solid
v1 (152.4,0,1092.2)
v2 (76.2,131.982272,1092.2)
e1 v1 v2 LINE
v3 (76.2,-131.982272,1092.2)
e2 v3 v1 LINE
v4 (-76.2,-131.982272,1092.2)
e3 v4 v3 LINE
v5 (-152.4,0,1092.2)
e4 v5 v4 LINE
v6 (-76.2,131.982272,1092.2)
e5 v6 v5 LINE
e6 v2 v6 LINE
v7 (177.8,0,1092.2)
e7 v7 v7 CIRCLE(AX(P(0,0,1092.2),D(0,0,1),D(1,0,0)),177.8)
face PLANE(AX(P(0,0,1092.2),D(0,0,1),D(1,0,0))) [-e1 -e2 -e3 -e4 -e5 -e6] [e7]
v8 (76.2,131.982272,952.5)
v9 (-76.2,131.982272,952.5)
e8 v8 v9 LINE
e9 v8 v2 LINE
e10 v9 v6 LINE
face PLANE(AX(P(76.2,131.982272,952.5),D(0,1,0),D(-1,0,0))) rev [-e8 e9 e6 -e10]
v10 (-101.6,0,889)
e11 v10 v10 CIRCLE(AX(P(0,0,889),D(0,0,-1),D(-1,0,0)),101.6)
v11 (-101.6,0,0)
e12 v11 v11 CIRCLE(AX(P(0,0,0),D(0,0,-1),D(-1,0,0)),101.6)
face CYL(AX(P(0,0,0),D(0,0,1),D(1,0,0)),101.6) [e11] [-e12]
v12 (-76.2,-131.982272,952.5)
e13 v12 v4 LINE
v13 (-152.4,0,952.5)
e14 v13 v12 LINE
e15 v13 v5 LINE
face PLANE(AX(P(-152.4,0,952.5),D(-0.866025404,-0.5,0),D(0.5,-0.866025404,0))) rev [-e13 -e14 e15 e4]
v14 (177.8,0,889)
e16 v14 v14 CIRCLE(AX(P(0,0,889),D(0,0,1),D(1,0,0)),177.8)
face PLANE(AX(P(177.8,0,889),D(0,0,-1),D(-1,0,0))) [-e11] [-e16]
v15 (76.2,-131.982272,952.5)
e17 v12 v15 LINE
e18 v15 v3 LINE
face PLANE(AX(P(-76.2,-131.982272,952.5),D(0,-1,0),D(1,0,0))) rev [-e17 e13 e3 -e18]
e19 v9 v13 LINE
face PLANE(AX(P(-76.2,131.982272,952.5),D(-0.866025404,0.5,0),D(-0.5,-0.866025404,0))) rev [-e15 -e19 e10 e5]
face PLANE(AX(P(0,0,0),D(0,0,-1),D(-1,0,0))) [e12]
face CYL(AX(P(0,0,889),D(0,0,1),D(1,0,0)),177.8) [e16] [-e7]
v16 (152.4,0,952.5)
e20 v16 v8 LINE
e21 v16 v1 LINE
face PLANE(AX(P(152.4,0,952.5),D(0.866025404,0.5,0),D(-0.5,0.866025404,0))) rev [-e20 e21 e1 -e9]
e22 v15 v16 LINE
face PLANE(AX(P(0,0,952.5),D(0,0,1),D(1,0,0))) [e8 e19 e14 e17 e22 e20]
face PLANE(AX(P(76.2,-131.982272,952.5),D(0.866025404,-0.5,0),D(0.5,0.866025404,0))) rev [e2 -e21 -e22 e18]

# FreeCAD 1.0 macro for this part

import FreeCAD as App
import Part
import Sketcher
from FreeCAD import Vector
Q = App.Units.Quantity


def add_polygon(sketch, points):
    """Adds a closed chain of lines whose ends are joined by coincident constraints."""
    first, n = sketch.GeometryCount, len(points)
    for a, b in zip(points, points[1:] + points[:1]):
        sketch.addGeometry(Part.LineSegment(App.Vector(*a, 0), App.Vector(*b, 0)), False)
    for i in range(n):
        sketch.addConstraint(Sketcher.Constraint("Coincident", first + i, 2, first + (i + 1) % n, 1))

doc = App.newDocument("Part")
body = doc.addObject("PartDesign::Body", "Body")

sketch1 = doc.addObject("Sketcher::SketchObject", "Sketch")
body.addObject(sketch1)
sketch1.AttachmentSupport = (doc.XZ_Plane, [""])
sketch1.MapMode = "FlatFace"
add_polygon(sketch1, [(0, 889), (0, 1092.2), (177.8, 1092.2), (177.8, 889)])
sketch1.addConstraint([
    Sketcher.Constraint("Vertical", 0),
    Sketcher.Constraint("Horizontal", 1),
    Sketcher.Constraint("Vertical", 2),
    Sketcher.Constraint("Horizontal", 3),
    Sketcher.Constraint("PointOnObject", 0, 2, -2),
    Sketcher.Constraint("DistanceX", 1, 1, 1, 2, Q("7 in")),
    Sketcher.Constraint("DistanceY", 0, 1, 0, 2, Q("8 in")),
    Sketcher.Constraint("DistanceY", -1, 1, 0, 2, Q("43 in")),
])
revolution = doc.addObject("PartDesign::Revolution", "Revolution")
body.addObject(revolution)
revolution.Profile = sketch1
revolution.ReferenceAxis = (sketch1, ["V_Axis"])
revolution.Angle = 360

sketch2 = doc.addObject("Sketcher::SketchObject", "Sketch001")
body.addObject(sketch2)
sketch2.AttachmentSupport = (doc.XY_Plane, [""])
sketch2.MapMode = "FlatFace"
sketch2.AttachmentOffset = App.Placement(Vector(0, 0, 35 * 25.4), App.Rotation())
sketch2.addGeometry(Part.Circle(Vector(0, 0, 0), Vector(0, 0, 1), 101.6), False)
sketch2.addConstraint([
    Sketcher.Constraint("Coincident", 0, 3, -1, 1),
    Sketcher.Constraint("Diameter", 0, Q("8 in")),
])
pad1 = doc.addObject("PartDesign::Pad", "Pad")
body.addObject(pad1)
pad1.Profile = sketch2
pad1.Length = Q("35 in")
pad1.Reversed = True

sketch3 = doc.addObject("Sketcher::SketchObject", "Sketch002")
body.addObject(sketch3)
sketch3.AttachmentSupport = (doc.XY_Plane, [""])
sketch3.MapMode = "FlatFace"
sketch3.AttachmentOffset = App.Placement(Vector(0, 0, 43 * 25.4), App.Rotation())
add_polygon(sketch3, [(-152.4, 0), (-76.2, -131.982272), (76.2, -131.982272), (152.4, 0), (76.2, 131.982272), (-76.2, 131.982272)])
sketch3.addConstraint([
    Sketcher.Constraint("Horizontal", 1),
    Sketcher.Constraint("Horizontal", 4),
    Sketcher.Constraint("Symmetric", 0, 2, 3, 2, -1, 1),
    Sketcher.Constraint("Symmetric", 2, 2, 5, 2, -1, 1),
    Sketcher.Constraint("PointOnObject", 2, 2, -1),
    Sketcher.Constraint("Parallel", 2, 5),
    Sketcher.Constraint("Vertical", 1, 2, 3, 2),
    Sketcher.Constraint("DistanceX", 1, 1, 1, 2, Q("6 in")),
    Sketcher.Constraint("Distance", 0, Q("6 in")),
    Sketcher.Constraint("DistanceX", -1, 1, 2, 2, Q("6 in")),
])
pocket1 = doc.addObject("PartDesign::Pocket", "Pocket")
body.addObject(pocket1)
pocket1.Profile = sketch3
pocket1.Length = Q("5.5 in")

doc.recompute()
